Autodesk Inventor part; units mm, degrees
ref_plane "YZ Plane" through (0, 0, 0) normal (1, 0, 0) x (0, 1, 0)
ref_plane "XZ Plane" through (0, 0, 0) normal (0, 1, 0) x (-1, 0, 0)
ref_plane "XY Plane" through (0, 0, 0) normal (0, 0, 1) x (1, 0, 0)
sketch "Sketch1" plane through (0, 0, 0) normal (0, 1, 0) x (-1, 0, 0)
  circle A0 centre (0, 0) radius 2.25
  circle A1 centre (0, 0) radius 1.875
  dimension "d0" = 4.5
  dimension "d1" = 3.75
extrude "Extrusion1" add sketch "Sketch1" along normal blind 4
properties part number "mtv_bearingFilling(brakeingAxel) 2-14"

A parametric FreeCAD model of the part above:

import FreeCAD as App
import Part
import Sketcher
Q = App.Units.Quantity

doc = App.newDocument("Part")
body = doc.addObject("PartDesign::Body", "Body")

# Sketch on XZ plane
sketch1 = doc.addObject("Sketcher::SketchObject", "Sketch")
body.addObject(sketch1)
sketch1.AttachmentSupport = (doc.XZ_Plane, [""])
sketch1.MapMode = "FlatFace"
sketch1.addGeometry(Part.Circle(App.Vector(0, 0, 0), App.Vector(0, 0, 1), 2.2), False)
sketch1.addGeometry(Part.Circle(App.Vector(0, 0, 0), App.Vector(0, 0, 1), 1.9), False)
sketch1.addConstraint(Sketcher.Constraint("Coincident", 0, 3, -1, 1))
sketch1.addConstraint(Sketcher.Constraint("Coincident", 1, 3, -1, 1))
sketch1.addConstraint(Sketcher.Constraint("Diameter", 0, Q("4.5 mm")))
sketch1.addConstraint(Sketcher.Constraint("Diameter", 1, Q("3.75 mm")))
pad1 = doc.addObject("PartDesign::Pad", "Pad")
body.addObject(pad1)
pad1.Profile = sketch1
pad1.Length = 4
pad1.Reversed = True

doc.recompute()
